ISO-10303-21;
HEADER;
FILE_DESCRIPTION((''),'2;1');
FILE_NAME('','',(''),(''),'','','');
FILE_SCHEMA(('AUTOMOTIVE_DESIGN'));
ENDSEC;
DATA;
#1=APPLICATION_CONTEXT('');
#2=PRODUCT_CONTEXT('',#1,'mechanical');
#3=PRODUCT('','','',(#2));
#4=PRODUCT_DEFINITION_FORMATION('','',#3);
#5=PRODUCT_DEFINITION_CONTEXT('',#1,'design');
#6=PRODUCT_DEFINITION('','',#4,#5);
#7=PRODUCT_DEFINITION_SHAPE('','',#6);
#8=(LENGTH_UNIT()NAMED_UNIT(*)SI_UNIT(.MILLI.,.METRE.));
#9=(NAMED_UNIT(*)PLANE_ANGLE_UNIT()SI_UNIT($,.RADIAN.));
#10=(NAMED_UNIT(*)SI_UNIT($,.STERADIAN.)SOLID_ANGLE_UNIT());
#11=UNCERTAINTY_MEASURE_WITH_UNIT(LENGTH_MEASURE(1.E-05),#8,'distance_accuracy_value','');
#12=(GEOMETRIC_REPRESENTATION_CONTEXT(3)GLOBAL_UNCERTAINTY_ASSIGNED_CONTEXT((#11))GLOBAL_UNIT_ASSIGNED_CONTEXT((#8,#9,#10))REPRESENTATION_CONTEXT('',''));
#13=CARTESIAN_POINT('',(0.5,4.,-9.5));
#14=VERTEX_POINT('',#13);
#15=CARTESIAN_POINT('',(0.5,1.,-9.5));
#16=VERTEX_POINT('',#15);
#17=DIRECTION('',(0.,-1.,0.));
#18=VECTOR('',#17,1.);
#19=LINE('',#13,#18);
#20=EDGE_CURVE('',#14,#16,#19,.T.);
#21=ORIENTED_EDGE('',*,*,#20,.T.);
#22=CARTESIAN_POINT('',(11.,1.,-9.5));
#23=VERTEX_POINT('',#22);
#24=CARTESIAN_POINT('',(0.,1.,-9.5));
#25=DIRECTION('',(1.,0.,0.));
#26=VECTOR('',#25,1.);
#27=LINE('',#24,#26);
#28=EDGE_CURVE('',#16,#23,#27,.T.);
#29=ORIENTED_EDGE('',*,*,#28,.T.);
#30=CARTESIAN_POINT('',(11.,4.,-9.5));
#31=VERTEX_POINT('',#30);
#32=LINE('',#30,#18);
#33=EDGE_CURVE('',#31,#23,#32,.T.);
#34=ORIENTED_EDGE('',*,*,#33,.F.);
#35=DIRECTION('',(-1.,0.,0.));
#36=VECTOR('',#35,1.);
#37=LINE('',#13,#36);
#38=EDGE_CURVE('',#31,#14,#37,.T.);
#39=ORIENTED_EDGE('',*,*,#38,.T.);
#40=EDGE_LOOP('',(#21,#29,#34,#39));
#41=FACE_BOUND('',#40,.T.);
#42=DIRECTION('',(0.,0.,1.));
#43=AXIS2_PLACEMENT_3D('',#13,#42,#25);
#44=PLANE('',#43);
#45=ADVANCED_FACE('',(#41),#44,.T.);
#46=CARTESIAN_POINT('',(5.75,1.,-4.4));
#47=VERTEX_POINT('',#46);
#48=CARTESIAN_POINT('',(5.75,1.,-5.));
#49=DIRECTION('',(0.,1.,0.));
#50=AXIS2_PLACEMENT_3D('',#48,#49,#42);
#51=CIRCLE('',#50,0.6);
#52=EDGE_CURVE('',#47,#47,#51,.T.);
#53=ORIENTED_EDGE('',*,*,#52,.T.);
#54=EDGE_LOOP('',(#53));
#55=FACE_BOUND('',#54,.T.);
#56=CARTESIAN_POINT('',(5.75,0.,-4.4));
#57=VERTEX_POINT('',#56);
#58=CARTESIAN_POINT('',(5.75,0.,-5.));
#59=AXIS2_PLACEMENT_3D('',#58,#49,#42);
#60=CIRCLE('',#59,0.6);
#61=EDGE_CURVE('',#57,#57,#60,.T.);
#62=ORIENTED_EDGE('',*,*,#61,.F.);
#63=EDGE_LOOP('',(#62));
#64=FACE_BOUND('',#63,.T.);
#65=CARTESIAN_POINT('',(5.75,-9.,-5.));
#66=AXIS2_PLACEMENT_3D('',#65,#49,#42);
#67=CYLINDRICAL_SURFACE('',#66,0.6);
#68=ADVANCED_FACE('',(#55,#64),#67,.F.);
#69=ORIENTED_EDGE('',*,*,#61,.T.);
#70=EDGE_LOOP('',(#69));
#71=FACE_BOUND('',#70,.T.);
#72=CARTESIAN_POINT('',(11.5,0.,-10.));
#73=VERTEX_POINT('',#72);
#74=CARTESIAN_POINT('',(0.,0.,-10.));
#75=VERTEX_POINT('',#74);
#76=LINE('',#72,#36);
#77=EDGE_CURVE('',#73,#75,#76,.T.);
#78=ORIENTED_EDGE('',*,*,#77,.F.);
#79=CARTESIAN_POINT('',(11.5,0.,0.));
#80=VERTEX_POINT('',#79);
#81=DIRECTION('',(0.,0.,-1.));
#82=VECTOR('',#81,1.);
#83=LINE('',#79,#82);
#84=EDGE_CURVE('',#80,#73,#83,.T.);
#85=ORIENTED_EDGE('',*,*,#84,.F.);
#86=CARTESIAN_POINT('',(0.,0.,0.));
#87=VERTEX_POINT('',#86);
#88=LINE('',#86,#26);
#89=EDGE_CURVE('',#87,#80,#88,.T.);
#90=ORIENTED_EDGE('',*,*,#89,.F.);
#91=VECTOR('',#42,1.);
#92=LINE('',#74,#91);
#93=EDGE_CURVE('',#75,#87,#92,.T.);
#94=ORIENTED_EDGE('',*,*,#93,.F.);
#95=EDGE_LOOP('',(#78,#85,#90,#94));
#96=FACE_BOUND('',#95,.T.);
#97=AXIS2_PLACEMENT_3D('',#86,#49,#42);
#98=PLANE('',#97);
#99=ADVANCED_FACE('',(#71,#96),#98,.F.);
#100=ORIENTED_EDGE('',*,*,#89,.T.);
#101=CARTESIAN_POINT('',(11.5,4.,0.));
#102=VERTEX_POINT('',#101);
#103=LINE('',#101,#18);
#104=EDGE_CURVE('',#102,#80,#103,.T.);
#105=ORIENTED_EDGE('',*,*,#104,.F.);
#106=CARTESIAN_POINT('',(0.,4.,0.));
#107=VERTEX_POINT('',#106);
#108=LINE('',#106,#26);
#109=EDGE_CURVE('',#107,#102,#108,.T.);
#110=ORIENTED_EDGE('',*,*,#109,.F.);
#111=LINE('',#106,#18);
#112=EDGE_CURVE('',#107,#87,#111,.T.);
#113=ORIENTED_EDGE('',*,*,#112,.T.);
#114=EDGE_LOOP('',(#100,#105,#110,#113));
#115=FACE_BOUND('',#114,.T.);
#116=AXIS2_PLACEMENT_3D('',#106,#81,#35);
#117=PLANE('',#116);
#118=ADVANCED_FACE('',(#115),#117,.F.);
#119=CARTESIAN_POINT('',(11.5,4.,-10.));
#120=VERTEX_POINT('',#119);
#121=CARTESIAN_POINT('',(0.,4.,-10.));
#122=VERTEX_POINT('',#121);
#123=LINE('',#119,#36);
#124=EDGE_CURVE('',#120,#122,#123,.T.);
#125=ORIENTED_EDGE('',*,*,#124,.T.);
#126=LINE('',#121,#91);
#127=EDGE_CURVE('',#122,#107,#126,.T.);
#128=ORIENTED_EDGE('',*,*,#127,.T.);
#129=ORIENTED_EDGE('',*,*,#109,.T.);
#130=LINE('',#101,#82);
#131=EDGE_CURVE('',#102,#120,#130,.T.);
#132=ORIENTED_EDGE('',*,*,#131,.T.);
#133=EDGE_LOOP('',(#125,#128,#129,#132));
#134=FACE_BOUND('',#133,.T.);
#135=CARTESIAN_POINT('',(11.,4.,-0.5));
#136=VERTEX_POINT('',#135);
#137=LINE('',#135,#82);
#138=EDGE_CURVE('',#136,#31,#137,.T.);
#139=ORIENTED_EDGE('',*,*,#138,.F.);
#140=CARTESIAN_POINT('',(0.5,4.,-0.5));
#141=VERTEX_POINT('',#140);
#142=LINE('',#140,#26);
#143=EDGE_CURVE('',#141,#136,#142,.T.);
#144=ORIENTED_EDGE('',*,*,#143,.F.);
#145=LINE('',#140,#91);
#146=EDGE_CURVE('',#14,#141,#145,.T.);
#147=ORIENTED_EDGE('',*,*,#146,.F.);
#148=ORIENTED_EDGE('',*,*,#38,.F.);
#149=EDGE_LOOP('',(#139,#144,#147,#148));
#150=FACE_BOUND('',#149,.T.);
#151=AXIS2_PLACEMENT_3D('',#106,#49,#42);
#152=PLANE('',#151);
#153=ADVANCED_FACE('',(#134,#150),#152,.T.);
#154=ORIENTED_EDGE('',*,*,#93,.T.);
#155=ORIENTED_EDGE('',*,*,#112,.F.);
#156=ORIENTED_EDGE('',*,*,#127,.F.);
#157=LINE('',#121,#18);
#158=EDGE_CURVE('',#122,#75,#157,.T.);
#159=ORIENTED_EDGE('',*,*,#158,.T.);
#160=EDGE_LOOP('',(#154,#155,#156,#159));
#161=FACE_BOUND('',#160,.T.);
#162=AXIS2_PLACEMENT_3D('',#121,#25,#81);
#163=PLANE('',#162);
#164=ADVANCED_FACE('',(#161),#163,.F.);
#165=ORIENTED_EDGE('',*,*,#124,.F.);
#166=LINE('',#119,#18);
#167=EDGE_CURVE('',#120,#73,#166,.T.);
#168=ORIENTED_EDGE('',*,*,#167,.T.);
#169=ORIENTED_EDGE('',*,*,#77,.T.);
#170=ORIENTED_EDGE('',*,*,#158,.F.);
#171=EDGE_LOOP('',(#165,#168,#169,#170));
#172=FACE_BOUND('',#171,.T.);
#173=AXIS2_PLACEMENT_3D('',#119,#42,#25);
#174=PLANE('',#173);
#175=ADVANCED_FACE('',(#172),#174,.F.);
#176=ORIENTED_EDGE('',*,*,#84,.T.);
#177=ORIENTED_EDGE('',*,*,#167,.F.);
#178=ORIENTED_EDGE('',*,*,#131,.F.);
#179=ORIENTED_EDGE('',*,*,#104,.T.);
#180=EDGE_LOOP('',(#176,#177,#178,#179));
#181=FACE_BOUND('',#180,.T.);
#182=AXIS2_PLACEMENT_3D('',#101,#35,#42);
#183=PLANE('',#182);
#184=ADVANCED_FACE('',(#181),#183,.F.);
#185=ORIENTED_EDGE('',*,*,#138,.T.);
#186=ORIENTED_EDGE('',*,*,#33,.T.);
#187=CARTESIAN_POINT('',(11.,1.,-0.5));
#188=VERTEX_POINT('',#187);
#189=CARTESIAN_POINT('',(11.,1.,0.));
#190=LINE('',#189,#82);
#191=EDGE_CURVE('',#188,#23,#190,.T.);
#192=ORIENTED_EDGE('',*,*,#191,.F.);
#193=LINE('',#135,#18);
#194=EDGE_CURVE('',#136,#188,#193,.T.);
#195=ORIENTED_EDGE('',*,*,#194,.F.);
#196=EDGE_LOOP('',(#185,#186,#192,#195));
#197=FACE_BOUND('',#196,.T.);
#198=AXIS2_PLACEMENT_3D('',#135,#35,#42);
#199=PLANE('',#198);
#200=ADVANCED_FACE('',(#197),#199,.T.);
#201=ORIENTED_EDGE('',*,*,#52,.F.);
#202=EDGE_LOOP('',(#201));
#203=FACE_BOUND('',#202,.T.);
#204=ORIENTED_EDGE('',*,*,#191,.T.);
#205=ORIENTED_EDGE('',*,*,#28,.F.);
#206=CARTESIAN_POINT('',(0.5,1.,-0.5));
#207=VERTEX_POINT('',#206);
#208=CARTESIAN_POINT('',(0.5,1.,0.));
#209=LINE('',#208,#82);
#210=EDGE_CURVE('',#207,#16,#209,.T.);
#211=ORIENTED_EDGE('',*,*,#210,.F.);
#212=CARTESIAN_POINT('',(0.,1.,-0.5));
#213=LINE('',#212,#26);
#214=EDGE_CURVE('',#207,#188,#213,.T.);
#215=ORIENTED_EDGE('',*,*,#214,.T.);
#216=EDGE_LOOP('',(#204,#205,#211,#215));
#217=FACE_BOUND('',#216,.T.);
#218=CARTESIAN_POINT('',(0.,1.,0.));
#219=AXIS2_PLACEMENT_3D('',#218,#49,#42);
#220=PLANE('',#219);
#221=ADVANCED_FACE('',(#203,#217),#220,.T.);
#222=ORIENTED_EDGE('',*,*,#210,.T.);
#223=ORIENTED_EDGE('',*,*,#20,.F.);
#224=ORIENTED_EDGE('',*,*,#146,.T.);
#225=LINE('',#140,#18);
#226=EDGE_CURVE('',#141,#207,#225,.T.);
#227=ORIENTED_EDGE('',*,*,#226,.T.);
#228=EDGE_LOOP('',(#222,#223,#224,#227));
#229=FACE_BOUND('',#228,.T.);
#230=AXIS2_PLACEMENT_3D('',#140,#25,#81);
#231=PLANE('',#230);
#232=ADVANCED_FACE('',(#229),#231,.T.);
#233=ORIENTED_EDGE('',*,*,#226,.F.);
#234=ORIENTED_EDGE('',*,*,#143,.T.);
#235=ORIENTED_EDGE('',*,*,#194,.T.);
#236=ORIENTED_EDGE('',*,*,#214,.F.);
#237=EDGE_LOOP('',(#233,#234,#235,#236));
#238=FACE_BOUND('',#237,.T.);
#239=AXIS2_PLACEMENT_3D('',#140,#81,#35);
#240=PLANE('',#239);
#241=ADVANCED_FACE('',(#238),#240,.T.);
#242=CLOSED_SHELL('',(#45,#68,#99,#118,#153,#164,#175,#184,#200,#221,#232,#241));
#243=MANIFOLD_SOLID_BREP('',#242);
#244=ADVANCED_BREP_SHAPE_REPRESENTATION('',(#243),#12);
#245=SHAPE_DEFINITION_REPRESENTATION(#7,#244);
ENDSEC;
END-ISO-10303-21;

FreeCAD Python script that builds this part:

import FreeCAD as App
import Part
import Sketcher
from FreeCAD import Vector

doc = App.newDocument("Part")
body = doc.addObject("PartDesign::Body", "Body")

# Sketch on XZ plane
sketch1 = body.newObject("Sketcher::SketchObject", "Sketch")
sketch1.AttachmentSupport = (doc.getObject("XZ_Plane"), [""])
sketch1.MapMode = "FlatFace"
sketch1.addGeometry(Part.LineSegment(Vector(0, -10, 0), Vector(0, 0, 0)), False)
sketch1.addGeometry(Part.LineSegment(Vector(0, 0, 0), Vector(11, 0, 0)), False)
sketch1.addGeometry(Part.LineSegment(Vector(11, 0, 0), Vector(11, -10, 0)), False)
sketch1.addGeometry(Part.LineSegment(Vector(11, -10, 0), Vector(0, -10, 0)), False)
sketch1.addConstraint(Sketcher.Constraint("Coincident", 0, 2, 1, 1))
sketch1.addConstraint(Sketcher.Constraint("Coincident", 1, 2, 2, 1))
sketch1.addConstraint(Sketcher.Constraint("Coincident", 2, 2, 3, 1))
sketch1.addConstraint(Sketcher.Constraint("Coincident", 3, 2, 0, 1))
sketch1.addConstraint(Sketcher.Constraint("Vertical", 0))
sketch1.addConstraint(Sketcher.Constraint("Horizontal", 1))
sketch1.addConstraint(Sketcher.Constraint("Vertical", 2))
sketch1.addConstraint(Sketcher.Constraint("Horizontal", 3))
sketch1.addConstraint(Sketcher.Constraint("DistanceY", 0, 1, 0, 2, 9.0))
sketch1.addConstraint(Sketcher.Constraint("DistanceX", 1, 1, 1, 2, 10.5))
sketch1.addConstraint(Sketcher.Constraint("DistanceX", -1, 1, 1, 2, 11.0))
sketch1.addConstraint(Sketcher.Constraint("DistanceY", 0, 2, -1, 1, 0.5))
pad1 = body.newObject("PartDesign::Pad", "Pad")
pad1.Profile = sketch1
pad1.Length = 1
pad1.Reversed = True

# Sketch on XZ plane
sketch2 = body.newObject("Sketcher::SketchObject", "Sketch001")
sketch2.AttachmentSupport = (doc.getObject("XZ_Plane"), [""])
sketch2.MapMode = "FlatFace"
sketch2.addGeometry(Part.LineSegment(Vector(0, -10, 0), Vector(0, 0, 0)), False)
sketch2.addGeometry(Part.LineSegment(Vector(0, 0, 0), Vector(12, 0, 0)), False)
sketch2.addGeometry(Part.LineSegment(Vector(12, 0, 0), Vector(12, -10, 0)), False)
sketch2.addGeometry(Part.LineSegment(Vector(12, -10, 0), Vector(0, -10, 0)), False)
sketch2.addGeometry(Part.LineSegment(Vector(11, 0, 0), Vector(0, 0, 0)), False)
sketch2.addGeometry(Part.LineSegment(Vector(0, 0, 0), Vector(0, -10, 0)), False)
sketch2.addGeometry(Part.LineSegment(Vector(0, -10, 0), Vector(11, -10, 0)), False)
sketch2.addGeometry(Part.LineSegment(Vector(11, -10, 0), Vector(11, 0, 0)), False)
sketch2.addConstraint(Sketcher.Constraint("Coincident", 0, 2, 1, 1))
sketch2.addConstraint(Sketcher.Constraint("Coincident", 1, 2, 2, 1))
sketch2.addConstraint(Sketcher.Constraint("Coincident", 2, 2, 3, 1))
sketch2.addConstraint(Sketcher.Constraint("Coincident", 3, 2, 0, 1))
sketch2.addConstraint(Sketcher.Constraint("Coincident", 4, 2, 5, 1))
sketch2.addConstraint(Sketcher.Constraint("Coincident", 5, 2, 6, 1))
sketch2.addConstraint(Sketcher.Constraint("Coincident", 6, 2, 7, 1))
sketch2.addConstraint(Sketcher.Constraint("Coincident", 7, 2, 4, 1))
sketch2.addConstraint(Sketcher.Constraint("Vertical", 0))
sketch2.addConstraint(Sketcher.Constraint("Horizontal", 1))
sketch2.addConstraint(Sketcher.Constraint("Vertical", 2))
sketch2.addConstraint(Sketcher.Constraint("Horizontal", 3))
sketch2.addConstraint(Sketcher.Constraint("Horizontal", 4))
sketch2.addConstraint(Sketcher.Constraint("Vertical", 5))
sketch2.addConstraint(Sketcher.Constraint("Horizontal", 6))
sketch2.addConstraint(Sketcher.Constraint("Vertical", 7))
sketch2.addConstraint(Sketcher.Constraint("Coincident", 0, 2, -1, 1))
sketch2.addConstraint(Sketcher.Constraint("DistanceY", 0, 1, 0, 2, 10.0))
sketch2.addConstraint(Sketcher.Constraint("DistanceY", 5, 2, 5, 1, 9.0))
sketch2.addConstraint(Sketcher.Constraint("DistanceX", 1, 1, 1, 2, 11.5))
sketch2.addConstraint(Sketcher.Constraint("DistanceX", 4, 2, 4, 1, 10.5))
sketch2.addConstraint(Sketcher.Constraint("DistanceX", -1, 1, 6, 2, 11.0))
sketch2.addConstraint(Sketcher.Constraint("DistanceY", 4, 2, -1, 1, 0.5))
pad2 = body.newObject("PartDesign::Pad", "Pad001")
pad2.Profile = sketch2
pad2.Length = 4
pad2.Reversed = True

# Sketch on XZ plane
sketch3 = body.newObject("Sketcher::SketchObject", "Sketch002")
sketch3.AttachmentSupport = (doc.getObject("XZ_Plane"), [""])
sketch3.MapMode = "FlatFace"
sketch3.AttachmentOffset = App.Placement(Vector(0, 0, -1), App.Rotation())
sketch3.addGeometry(Part.Circle(Vector(5.8, -5, 0), Vector(0, 0, 1), 0.6), False)
sketch3.addConstraint(Sketcher.Constraint("Diameter", 0, 1.2))
sketch3.addConstraint(Sketcher.Constraint("DistanceY", 0, 3, -1, 1, 5.0))
sketch3.addConstraint(Sketcher.Constraint("DistanceX", -1, 1, 0, 3, 5.75))
pocket1 = body.newObject("PartDesign::Pocket", "Pocket")
pocket1.Profile = sketch3
pocket1.Length = 10
pocket1.Reversed = True

doc.recompute()
